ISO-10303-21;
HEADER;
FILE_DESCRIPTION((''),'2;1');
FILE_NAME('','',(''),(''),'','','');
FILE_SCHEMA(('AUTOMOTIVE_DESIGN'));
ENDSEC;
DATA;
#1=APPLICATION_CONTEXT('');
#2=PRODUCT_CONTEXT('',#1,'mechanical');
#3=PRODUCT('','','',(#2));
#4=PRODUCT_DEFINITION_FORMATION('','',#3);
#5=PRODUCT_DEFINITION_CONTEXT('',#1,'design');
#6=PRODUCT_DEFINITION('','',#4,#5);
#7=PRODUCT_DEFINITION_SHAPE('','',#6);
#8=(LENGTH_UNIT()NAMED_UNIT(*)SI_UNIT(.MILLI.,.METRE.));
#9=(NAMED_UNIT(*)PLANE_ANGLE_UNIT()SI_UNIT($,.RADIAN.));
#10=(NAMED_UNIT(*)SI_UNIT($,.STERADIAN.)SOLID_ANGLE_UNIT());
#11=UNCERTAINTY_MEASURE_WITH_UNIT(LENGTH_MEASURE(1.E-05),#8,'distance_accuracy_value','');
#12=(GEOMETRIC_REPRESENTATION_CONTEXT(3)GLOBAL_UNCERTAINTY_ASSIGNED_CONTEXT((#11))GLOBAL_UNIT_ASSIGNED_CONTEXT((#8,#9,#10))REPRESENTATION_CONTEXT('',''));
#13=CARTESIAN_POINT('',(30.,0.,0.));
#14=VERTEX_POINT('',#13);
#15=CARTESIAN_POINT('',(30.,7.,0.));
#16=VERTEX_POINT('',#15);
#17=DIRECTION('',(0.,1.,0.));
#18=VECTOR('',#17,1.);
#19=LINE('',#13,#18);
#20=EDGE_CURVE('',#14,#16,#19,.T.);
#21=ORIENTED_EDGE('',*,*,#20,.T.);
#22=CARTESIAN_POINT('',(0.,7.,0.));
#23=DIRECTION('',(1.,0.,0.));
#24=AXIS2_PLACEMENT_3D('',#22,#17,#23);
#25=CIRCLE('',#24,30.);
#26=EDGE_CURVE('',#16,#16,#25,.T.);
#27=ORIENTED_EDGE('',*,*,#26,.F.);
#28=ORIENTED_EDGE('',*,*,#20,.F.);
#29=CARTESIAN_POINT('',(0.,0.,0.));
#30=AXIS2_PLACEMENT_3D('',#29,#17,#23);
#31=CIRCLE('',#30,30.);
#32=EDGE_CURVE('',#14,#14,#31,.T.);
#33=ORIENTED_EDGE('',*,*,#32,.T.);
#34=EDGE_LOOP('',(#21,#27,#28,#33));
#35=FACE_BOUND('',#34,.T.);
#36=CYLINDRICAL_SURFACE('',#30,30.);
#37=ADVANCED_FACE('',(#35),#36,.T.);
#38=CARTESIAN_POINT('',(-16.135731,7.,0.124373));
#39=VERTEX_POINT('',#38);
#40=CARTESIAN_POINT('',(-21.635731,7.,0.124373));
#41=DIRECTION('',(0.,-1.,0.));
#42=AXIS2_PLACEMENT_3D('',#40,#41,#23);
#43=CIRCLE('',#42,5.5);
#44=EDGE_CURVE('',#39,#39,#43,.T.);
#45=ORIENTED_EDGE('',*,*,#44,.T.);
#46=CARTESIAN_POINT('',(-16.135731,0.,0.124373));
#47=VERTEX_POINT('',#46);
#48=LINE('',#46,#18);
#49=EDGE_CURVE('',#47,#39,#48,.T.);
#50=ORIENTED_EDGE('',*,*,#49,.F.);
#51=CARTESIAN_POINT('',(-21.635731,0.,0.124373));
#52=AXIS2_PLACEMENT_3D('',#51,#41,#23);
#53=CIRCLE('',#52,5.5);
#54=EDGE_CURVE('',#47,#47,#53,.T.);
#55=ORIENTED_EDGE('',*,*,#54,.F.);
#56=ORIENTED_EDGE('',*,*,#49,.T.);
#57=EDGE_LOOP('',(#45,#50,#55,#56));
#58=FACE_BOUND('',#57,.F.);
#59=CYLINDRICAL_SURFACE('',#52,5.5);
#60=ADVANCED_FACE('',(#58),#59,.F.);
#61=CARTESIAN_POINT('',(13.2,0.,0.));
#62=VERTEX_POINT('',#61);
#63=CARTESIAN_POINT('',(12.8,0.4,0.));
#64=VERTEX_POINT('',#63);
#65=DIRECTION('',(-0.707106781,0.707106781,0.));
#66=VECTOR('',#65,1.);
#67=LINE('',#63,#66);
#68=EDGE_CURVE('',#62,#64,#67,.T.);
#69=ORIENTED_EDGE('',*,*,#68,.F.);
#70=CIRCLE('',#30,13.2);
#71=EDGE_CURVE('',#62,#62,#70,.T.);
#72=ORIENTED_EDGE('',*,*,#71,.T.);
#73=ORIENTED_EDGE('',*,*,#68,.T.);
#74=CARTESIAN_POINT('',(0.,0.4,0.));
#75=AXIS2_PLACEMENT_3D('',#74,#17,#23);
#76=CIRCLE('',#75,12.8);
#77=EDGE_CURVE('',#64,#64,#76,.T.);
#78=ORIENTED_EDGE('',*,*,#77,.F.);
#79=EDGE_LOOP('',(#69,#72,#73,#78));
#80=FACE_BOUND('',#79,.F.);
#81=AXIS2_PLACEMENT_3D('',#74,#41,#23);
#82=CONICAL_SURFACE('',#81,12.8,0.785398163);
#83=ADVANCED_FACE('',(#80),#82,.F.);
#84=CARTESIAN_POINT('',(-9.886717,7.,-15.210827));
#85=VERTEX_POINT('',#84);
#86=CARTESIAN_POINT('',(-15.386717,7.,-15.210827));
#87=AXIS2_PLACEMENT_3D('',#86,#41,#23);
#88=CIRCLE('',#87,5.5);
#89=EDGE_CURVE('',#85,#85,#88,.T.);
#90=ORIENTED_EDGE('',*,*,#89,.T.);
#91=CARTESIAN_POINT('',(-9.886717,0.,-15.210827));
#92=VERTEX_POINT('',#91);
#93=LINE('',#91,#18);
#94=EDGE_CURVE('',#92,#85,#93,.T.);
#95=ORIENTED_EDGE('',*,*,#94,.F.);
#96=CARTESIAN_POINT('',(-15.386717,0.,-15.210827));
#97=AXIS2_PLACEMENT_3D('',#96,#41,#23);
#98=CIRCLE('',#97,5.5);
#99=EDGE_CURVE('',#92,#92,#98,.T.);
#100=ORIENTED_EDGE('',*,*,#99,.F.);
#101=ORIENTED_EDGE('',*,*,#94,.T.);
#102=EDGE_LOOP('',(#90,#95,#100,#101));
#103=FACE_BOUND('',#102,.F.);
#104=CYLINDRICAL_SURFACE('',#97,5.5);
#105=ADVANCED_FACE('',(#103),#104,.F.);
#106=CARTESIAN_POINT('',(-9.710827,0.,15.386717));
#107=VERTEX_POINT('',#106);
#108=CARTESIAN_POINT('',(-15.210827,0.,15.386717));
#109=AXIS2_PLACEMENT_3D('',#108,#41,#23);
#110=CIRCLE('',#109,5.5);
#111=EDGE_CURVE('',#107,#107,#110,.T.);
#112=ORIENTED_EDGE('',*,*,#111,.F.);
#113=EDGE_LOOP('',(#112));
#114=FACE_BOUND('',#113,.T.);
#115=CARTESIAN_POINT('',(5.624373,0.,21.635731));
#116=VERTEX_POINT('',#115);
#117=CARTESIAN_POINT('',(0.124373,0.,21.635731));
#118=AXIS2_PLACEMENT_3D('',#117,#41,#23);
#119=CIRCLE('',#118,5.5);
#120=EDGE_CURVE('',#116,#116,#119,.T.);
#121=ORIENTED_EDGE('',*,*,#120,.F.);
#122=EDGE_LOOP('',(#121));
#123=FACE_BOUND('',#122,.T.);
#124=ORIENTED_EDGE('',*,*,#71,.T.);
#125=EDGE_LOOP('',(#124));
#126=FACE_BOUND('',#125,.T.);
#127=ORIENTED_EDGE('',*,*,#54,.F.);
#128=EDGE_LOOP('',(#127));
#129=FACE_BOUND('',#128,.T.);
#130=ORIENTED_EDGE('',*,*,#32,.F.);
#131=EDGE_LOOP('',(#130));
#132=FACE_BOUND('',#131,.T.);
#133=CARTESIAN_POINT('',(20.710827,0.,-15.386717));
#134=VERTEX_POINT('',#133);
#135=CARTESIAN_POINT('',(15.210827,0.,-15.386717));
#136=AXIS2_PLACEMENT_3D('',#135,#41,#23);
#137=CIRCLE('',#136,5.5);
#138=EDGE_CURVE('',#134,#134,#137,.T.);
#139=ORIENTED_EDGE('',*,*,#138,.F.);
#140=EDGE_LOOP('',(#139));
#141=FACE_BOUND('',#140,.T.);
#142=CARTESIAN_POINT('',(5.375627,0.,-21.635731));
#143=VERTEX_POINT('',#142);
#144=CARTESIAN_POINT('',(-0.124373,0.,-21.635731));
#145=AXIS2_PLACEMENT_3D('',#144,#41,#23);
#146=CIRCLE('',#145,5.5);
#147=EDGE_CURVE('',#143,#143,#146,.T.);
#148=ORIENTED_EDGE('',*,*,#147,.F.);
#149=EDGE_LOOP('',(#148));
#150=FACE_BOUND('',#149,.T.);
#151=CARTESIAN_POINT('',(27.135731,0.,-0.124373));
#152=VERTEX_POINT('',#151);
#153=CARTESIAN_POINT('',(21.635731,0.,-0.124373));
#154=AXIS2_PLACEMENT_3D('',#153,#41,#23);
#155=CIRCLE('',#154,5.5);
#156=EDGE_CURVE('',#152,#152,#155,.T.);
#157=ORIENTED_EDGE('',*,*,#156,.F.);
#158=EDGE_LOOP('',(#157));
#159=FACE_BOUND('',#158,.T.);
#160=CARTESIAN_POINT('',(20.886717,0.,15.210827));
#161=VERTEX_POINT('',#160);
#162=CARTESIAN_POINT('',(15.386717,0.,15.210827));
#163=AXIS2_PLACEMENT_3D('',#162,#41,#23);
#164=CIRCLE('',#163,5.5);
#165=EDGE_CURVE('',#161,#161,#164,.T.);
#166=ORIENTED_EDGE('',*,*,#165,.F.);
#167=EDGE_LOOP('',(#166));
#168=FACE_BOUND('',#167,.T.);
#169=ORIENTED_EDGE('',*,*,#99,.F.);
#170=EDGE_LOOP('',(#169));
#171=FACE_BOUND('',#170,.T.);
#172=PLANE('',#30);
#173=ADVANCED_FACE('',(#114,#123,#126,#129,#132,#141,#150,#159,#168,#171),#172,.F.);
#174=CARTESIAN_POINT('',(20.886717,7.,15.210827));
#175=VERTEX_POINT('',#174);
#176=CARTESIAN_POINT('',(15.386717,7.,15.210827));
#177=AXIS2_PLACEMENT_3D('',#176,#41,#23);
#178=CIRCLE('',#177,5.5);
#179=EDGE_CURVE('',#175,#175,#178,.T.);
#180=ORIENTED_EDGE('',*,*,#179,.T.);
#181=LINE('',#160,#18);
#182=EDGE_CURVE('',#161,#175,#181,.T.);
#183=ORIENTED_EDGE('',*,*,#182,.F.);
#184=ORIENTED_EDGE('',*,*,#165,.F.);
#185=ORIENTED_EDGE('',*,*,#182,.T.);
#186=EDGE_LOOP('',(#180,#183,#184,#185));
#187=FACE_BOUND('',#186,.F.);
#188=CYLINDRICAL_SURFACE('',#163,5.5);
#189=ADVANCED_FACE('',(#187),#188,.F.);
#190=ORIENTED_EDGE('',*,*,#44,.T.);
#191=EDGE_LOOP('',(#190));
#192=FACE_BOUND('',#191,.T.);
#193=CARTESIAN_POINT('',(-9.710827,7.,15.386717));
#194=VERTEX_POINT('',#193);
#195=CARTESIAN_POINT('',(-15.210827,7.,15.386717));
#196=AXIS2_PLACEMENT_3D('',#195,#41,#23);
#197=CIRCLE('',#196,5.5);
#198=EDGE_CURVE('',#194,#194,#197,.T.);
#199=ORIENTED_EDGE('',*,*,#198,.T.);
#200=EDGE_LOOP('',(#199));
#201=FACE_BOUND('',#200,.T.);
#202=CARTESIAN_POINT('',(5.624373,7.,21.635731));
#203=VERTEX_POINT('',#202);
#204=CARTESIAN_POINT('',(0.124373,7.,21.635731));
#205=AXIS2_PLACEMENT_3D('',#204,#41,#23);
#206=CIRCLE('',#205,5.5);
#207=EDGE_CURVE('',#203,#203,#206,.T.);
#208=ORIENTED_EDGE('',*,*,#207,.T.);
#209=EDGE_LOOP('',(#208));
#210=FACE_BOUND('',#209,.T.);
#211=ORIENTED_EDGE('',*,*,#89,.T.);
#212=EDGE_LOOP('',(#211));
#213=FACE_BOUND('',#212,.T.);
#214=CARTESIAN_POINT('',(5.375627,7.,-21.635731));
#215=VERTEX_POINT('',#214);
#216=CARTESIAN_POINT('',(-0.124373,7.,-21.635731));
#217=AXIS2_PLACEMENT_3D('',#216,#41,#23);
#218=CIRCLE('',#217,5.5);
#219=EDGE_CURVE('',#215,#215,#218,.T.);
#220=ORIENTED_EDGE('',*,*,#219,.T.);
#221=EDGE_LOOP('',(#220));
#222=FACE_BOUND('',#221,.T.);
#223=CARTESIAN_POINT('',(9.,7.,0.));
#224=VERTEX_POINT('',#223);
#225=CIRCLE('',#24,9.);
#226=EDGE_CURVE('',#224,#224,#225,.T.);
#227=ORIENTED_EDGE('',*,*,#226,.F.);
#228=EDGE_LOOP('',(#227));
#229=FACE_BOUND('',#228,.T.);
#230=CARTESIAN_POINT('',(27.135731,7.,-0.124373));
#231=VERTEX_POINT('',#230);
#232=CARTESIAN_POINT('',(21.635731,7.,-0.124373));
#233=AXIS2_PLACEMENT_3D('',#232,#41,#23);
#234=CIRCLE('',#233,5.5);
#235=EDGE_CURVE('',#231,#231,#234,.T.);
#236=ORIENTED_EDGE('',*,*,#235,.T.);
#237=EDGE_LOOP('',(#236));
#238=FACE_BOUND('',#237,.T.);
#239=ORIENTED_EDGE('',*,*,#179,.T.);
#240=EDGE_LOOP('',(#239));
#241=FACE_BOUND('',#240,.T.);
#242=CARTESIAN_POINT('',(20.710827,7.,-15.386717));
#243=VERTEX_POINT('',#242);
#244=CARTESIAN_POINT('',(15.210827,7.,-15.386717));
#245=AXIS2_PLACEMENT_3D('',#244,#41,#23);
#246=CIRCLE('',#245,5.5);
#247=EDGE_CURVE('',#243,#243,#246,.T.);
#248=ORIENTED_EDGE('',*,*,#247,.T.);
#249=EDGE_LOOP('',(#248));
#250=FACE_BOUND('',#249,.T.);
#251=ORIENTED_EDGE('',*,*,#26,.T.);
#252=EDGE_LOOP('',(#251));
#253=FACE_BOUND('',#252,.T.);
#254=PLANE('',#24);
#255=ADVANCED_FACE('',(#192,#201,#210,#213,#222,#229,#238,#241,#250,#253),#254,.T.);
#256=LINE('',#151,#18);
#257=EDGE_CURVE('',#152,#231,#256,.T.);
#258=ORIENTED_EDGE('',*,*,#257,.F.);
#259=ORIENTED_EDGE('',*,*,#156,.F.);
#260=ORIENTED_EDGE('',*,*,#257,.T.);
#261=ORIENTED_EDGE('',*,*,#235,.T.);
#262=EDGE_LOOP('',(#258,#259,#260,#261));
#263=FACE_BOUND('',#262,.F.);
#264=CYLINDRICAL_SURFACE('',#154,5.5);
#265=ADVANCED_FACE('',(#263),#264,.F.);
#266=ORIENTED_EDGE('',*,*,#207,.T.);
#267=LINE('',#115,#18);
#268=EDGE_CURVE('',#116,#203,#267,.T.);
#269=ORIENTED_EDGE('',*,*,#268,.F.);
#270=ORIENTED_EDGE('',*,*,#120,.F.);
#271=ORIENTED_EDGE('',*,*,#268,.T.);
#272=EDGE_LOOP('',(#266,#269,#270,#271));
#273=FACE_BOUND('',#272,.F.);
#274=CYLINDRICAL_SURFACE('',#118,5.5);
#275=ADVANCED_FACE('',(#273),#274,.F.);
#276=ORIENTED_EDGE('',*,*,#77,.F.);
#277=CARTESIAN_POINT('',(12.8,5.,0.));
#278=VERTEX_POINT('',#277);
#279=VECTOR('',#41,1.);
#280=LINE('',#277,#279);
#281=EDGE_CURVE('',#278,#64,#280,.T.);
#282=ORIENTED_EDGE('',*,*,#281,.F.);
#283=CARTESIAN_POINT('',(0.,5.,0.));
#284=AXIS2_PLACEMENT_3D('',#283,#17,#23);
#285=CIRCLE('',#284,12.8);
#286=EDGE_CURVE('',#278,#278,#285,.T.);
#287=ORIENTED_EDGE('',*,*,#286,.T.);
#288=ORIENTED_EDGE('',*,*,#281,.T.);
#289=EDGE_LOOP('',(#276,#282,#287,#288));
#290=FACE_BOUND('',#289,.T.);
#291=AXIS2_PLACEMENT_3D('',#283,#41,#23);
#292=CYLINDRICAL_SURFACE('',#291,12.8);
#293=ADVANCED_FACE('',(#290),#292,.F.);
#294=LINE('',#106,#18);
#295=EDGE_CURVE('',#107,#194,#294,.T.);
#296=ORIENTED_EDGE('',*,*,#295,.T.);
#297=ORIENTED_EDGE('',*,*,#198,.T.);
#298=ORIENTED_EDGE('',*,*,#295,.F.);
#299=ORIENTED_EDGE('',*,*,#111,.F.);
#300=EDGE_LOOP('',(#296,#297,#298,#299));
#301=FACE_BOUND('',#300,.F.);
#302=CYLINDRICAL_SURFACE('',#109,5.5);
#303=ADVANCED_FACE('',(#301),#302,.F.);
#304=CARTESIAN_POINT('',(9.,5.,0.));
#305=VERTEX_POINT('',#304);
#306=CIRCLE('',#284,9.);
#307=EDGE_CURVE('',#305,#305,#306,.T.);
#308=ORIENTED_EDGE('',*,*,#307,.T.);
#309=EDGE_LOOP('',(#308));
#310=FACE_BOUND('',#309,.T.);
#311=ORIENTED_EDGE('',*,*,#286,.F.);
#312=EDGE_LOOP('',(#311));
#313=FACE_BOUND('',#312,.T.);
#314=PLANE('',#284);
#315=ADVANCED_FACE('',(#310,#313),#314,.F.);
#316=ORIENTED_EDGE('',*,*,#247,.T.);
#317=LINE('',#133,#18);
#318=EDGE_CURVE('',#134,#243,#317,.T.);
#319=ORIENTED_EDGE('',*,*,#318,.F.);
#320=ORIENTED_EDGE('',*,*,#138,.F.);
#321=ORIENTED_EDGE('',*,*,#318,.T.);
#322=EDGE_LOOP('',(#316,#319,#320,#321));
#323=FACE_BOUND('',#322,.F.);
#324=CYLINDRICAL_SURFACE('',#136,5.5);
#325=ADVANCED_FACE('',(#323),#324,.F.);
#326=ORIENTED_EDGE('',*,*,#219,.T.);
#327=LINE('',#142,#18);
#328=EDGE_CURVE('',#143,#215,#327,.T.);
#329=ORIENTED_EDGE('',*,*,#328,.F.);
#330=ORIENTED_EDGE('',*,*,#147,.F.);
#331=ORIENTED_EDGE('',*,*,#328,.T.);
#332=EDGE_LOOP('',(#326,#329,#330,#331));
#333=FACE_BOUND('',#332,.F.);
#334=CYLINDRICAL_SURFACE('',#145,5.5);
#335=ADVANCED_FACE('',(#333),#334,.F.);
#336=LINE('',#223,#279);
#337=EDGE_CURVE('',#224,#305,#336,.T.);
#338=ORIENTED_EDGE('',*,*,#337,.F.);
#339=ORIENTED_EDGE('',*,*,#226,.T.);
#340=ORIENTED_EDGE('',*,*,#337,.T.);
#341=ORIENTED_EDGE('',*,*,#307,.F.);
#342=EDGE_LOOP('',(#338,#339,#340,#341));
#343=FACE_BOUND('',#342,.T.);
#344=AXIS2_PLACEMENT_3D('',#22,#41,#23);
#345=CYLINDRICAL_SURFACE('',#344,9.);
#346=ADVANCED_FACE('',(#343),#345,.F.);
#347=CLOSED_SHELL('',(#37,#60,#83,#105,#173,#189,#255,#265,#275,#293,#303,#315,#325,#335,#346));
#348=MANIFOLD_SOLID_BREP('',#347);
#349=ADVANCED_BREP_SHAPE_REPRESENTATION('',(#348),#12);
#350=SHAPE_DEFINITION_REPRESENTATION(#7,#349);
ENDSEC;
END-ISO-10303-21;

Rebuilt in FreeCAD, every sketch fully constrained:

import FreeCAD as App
import Part
import Sketcher
from FreeCAD import Vector


def edges_at(feature, points):
    """Names of the edges that pass closest to the given points."""
    edges = feature.Shape.Edges
    near = lambda p: min(range(len(edges)), key=lambda i: edges[i].distToShape(Part.Vertex(*p))[0])
    return sorted({f"Edge{near(p) + 1}" for p in points})


def add_polygon(sketch, points):
    """Adds a closed chain of lines whose ends are joined by coincident constraints."""
    first, n = sketch.GeometryCount, len(points)
    for a, b in zip(points, points[1:] + points[:1]):
        sketch.addGeometry(Part.LineSegment(App.Vector(*a, 0), App.Vector(*b, 0)), False)
    for i in range(n):
        sketch.addConstraint(Sketcher.Constraint("Coincident", first + i, 2, first + (i + 1) % n, 1))

doc = App.newDocument("Part")
params = doc.addObject("Spreadsheet::Sheet", "Params")
for row, (alias, value) in enumerate([
    ("sketch1_width", "21 mm"),
    ("sketch1_height", "7 mm"),
    ("sketch1_height2", "2 mm"),
    ("sketch1_width2", "3.8 mm"),
    ("revolution_angle", "360 deg"),
    ("sketch2_diameter", "11 mm"),
    ("chamfer_size", "0.4 mm"),
], start=1):
    params.set(f"A{row}", alias)
    params.set(f"B{row}", "=" + value)
    params.setAlias(f"B{row}", alias)

body = doc.addObject("PartDesign::Body", "Body")

# Sketch on XY plane
sketch1 = body.newObject("Sketcher::SketchObject", "Sketch")
sketch1.AttachmentSupport = (doc.getObject("XY_Plane"), [""])
sketch1.MapMode = "FlatFace"
add_polygon(sketch1, [(30, 0), (30, 7), (9, 7), (9, 5), (12.8, 5), (12.8, 0)])  # lines 0-5
sketch1.addConstraint([
    Sketcher.Constraint("Vertical", 0),
    Sketcher.Constraint("Horizontal", 1),
    Sketcher.Constraint("Vertical", 2),
    Sketcher.Constraint("Horizontal", 3),
    Sketcher.Constraint("Vertical", 4),
    Sketcher.Constraint("Horizontal", 5),
    Sketcher.Constraint("PointOnObject", 4, 2, -1),
    Sketcher.Constraint("DistanceX", 1, 2, 1, 1, 21.0),
    Sketcher.Constraint("DistanceY", 0, 1, 0, 2, 7.0),
    Sketcher.Constraint("DistanceY", 2, 2, 2, 1, 2.0),
    Sketcher.Constraint("DistanceX", 3, 1, 3, 2, 3.8),
    Sketcher.Constraint("DistanceX", -1, 1, 0, 2, 30.0),
])
sketch1.setExpression("Constraints[13]", "Params.sketch1_width")
sketch1.setExpression("Constraints[14]", "Params.sketch1_height")
sketch1.setExpression("Constraints[15]", "Params.sketch1_height2")
sketch1.setExpression("Constraints[16]", "Params.sketch1_width2")
revolution = body.newObject("PartDesign::Revolution", "Revolution")
revolution.Profile = sketch1
revolution.ReferenceAxis = (sketch1, ["V_Axis"])
revolution.setExpression("Angle", "Params.revolution_angle")

# Sketch on XZ plane
sketch2 = body.newObject("Sketcher::SketchObject", "Sketch001")
sketch2.AttachmentSupport = (doc.getObject("XZ_Plane"), [""])
sketch2.MapMode = "FlatFace"
sketch2.addGeometry([
    Part.Circle(Vector(0.124373, 21.635731, 0), Vector(0, 0, 1), 5.5),  # 0
    Part.Circle(Vector(15.386717, 15.210827, 0), Vector(0, 0, 1), 5.5),  # 1
    Part.Circle(Vector(21.635731, -0.124373, 0), Vector(0, 0, 1), 5.5),  # 2
    Part.Circle(Vector(15.210827, -15.386717, 0), Vector(0, 0, 1), 5.5),  # 3
    Part.Circle(Vector(-0.124373, -21.635731, 0), Vector(0, 0, 1), 5.5),  # 4
    Part.Circle(Vector(-15.386717, -15.210827, 0), Vector(0, 0, 1), 5.5),  # 5
    Part.Circle(Vector(-21.635731, 0.124373, 0), Vector(0, 0, 1), 5.5),  # 6
    Part.Circle(Vector(-15.210827, 15.386717, 0), Vector(0, 0, 1), 5.5),  # 7
], False)
sketch2.addConstraint([
    Sketcher.Constraint("Equal", 0, 1),
    Sketcher.Constraint("Equal", 1, 2),
    Sketcher.Constraint("Equal", 2, 3),
    Sketcher.Constraint("Equal", 3, 4),
    Sketcher.Constraint("Equal", 4, 5),
    Sketcher.Constraint("Equal", 5, 6),
    Sketcher.Constraint("Equal", 6, 7),
    Sketcher.Constraint("Symmetric", 0, 3, 4, 3, -1, 1),
    Sketcher.Constraint("Symmetric", 1, 3, 5, 3, -1, 1),
    Sketcher.Constraint("Symmetric", 2, 3, 6, 3, -1, 1),
    Sketcher.Constraint("Symmetric", 3, 3, 7, 3, -1, 1),
    Sketcher.Constraint("Diameter", 0, 11.0),
    Sketcher.Constraint("DistanceY", 2, 3, 1, 3, 15.3352),
    Sketcher.Constraint("DistanceX", 4, 3, 3, 3, 15.3352),
    Sketcher.Constraint("DistanceY", -1, 1, 0, 3, 21.635731),
    Sketcher.Constraint("DistanceX", -1, 1, 2, 3, 21.635731),
    Sketcher.Constraint("DistanceX", 0, 3, 2, 3, 21.511358),
    Sketcher.Constraint("DistanceX", 3, 3, 1, 3, 0.17589),
    Sketcher.Constraint("DistanceY", 4, 3, 2, 3, 21.511358),
    Sketcher.Constraint("DistanceY", 3, 3, 5, 3, 0.17589),
])
sketch2.setExpression("Constraints[11]", "Params.sketch2_diameter")
pocket1 = body.newObject("PartDesign::Pocket", "Pocket")
pocket1.Profile = sketch2
pocket1.Type = "ThroughAll"
doc.recompute()

chamfer = body.newObject("PartDesign::Chamfer", "Chamfer")
chamfer.Base = (pocket1, edges_at(pocket1, [(-12.8, 0, 0)]))
chamfer.setExpression("Size", "Params.chamfer_size")

doc.recompute()
